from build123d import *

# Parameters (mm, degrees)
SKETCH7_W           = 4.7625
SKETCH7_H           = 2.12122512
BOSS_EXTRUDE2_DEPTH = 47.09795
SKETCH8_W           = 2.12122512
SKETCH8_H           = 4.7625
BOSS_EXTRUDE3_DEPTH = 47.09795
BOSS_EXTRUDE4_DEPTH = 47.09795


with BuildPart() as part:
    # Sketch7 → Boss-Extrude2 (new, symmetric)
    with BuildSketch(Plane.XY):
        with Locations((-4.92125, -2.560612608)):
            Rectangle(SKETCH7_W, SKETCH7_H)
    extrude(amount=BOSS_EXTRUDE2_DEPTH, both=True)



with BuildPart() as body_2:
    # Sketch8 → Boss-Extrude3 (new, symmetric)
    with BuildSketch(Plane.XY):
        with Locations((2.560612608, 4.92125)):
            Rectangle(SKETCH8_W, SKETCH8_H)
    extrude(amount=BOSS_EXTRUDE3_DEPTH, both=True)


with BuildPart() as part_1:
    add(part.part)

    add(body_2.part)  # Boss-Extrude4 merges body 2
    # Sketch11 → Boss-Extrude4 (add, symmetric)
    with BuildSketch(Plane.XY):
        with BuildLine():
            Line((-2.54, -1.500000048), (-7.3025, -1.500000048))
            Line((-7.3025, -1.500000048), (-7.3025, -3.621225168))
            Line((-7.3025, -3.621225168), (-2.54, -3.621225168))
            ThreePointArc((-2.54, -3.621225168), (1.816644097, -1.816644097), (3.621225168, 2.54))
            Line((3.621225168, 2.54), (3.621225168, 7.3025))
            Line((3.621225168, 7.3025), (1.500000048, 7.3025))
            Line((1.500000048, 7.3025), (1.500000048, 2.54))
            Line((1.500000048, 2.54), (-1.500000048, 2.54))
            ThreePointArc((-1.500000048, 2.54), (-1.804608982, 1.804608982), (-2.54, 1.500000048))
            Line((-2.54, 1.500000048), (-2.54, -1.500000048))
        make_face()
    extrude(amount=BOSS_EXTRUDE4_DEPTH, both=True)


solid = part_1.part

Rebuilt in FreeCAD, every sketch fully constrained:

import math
import FreeCAD as App
import Part
import Sketcher

V = App.Vector
Q = App.Units.Quantity

doc = App.newDocument("Part")
params = doc.addObject("Spreadsheet::Sheet", "Params")
for row, (alias, value) in enumerate([
    ("pad1_length", "94.1959 mm"),
    ("pad2_length", "94.1959 mm"),
    ("sketch3_width", "3 mm"),
    ("sketch3_radius", "1.04 mm"),
    ("pad3_length", "94.1959 mm"),
], start=1):
    params.set(f"A{row}", alias)
    params.set(f"B{row}", "=" + value)
    params.setAlias(f"B{row}", alias)

body = doc.addObject("PartDesign::Body", "Body")

# Sketch on XY plane
sketch1 = doc.addObject("Sketcher::SketchObject", "Sketch")
body.addObject(sketch1)
sketch1.AttachmentSupport = (doc.XY_Plane, [""])
sketch1.MapMode = "FlatFace"
sketch1.addGeometry([
    Part.LineSegment(V(-7.3025, -1.5, 0), V(-7.3025, -3.621225, 0)),
    Part.LineSegment(V(-7.3025, -3.621225, 0), V(-2.54, -3.621225, 0)),
    Part.LineSegment(V(-2.54, -3.621225, 0), V(-2.54, -1.5, 0)),
    Part.LineSegment(V(-2.54, -1.5, 0), V(-7.3025, -1.5, 0)),
], False)
sketch1.addConstraint([
    Sketcher.Constraint("Coincident", 0, 2, 1, 1),
    Sketcher.Constraint("Coincident", 1, 2, 2, 1),
    Sketcher.Constraint("Coincident", 2, 2, 3, 1),
    Sketcher.Constraint("Coincident", 3, 2, 0, 1),
    Sketcher.Constraint("Vertical", 0),
    Sketcher.Constraint("Horizontal", 1),
    Sketcher.Constraint("Vertical", 2),
    Sketcher.Constraint("Horizontal", 3),
    Sketcher.Constraint("DistanceY", 2, 2, -1, 1, Q("1.5 mm")),
    Sketcher.Constraint("DistanceX", 1, 2, -1, 1, Q("2.54 mm")),
    Sketcher.Constraint("DistanceX", 1, 1, 1, 2, Q("4.7625 mm")),
    Sketcher.Constraint("DistanceY", 0, 2, 0, 1, Q("2.121225 mm")),
])
pad1 = doc.addObject("PartDesign::Pad", "Pad")
body.addObject(pad1)
pad1.Profile = sketch1
pad1.setExpression("Length", "Params.pad1_length")
pad1.Midplane = True
body2 = doc.addObject("PartDesign::Body", "Body001")

# Sketch on XY plane
sketch2 = doc.addObject("Sketcher::SketchObject", "Sketch001")
body2.addObject(sketch2)
sketch2.AttachmentSupport = (doc.getObject("XY_Plane001"), [""])
sketch2.MapMode = "FlatFace"
sketch2.addGeometry([
    Part.LineSegment(V(1.5, 7.3025, 0), V(1.5, 2.54, 0)),
    Part.LineSegment(V(1.5, 2.54, 0), V(3.621225, 2.54, 0)),
    Part.LineSegment(V(3.621225, 2.54, 0), V(3.621225, 7.3025, 0)),
    Part.LineSegment(V(3.621225, 7.3025, 0), V(1.5, 7.3025, 0)),
], False)
sketch2.addConstraint([
    Sketcher.Constraint("Coincident", 0, 2, 1, 1),
    Sketcher.Constraint("Coincident", 1, 2, 2, 1),
    Sketcher.Constraint("Coincident", 2, 2, 3, 1),
    Sketcher.Constraint("Coincident", 3, 2, 0, 1),
    Sketcher.Constraint("Vertical", 0),
    Sketcher.Constraint("Horizontal", 1),
    Sketcher.Constraint("Vertical", 2),
    Sketcher.Constraint("Horizontal", 3),
    Sketcher.Constraint("DistanceX", -1, 1, 0, 2, Q("1.5 mm")),
    Sketcher.Constraint("DistanceY", -1, 1, 0, 2, Q("2.54 mm")),
    Sketcher.Constraint("DistanceY", 0, 2, 0, 1, Q("4.7625 mm")),
    Sketcher.Constraint("DistanceX", 1, 1, 1, 2, Q("2.121225 mm")),
])
pad2 = doc.addObject("PartDesign::Pad", "Pad001")
body2.addObject(pad2)
pad2.Profile = sketch2
pad2.setExpression("Length", "Params.pad2_length")
pad2.Midplane = True
body.AllowCompound = True
doc.recompute()

boolean = doc.addObject("PartDesign::Boolean", "Boolean")
body.addObject(boolean)
boolean.Type = "Fuse"
boolean.addObjects([body2])

# Sketch on XY plane
sketch3 = doc.addObject("Sketcher::SketchObject", "Sketch002")
body.addObject(sketch3)
sketch3.AttachmentSupport = (doc.XY_Plane, [""])
sketch3.MapMode = "FlatFace"
sketch3.addGeometry([
    Part.LineSegment(V(-2.54, -1.5, 0), V(-7.3025, -1.5, 0)),  # 0
    Part.LineSegment(V(-7.3025, -1.5, 0), V(-7.3025, -3.621225, 0)),  # 1
    Part.LineSegment(V(-7.3025, -3.621225, 0), V(-2.54, -3.621225, 0)),  # 2
    Part.ArcOfCircle(Part.Circle(V(-2.54, 2.54, 0), V(0, 0, 1), 6.161225), math.radians(-90), math.radians(0)),  # 3
    Part.LineSegment(V(3.621225, 2.54, 0), V(3.621225, 7.3025, 0)),  # 4
    Part.LineSegment(V(3.621225, 7.3025, 0), V(1.5, 7.3025, 0)),  # 5
    Part.LineSegment(V(1.5, 7.3025, 0), V(1.5, 2.54, 0)),  # 6
    Part.LineSegment(V(1.5, 2.54, 0), V(-1.5, 2.54, 0)),  # 7
    Part.ArcOfCircle(Part.Circle(V(-2.54, 2.54, 0), V(0, 0, 1), 1.04), math.radians(-90), math.radians(0)),  # 8
    Part.LineSegment(V(-2.54, 1.5, 0), V(-2.54, -1.5, 0)),  # 9
], False)
sketch3.addConstraint([
    Sketcher.Constraint("Coincident", 0, 2, 1, 1),
    Sketcher.Constraint("Coincident", 1, 2, 2, 1),
    Sketcher.Constraint("Tangent", 2, 2, 3, 1),
    Sketcher.Constraint("Tangent", 3, 2, 4, 1),
    Sketcher.Constraint("Coincident", 4, 2, 5, 1),
    Sketcher.Constraint("Coincident", 5, 2, 6, 1),
    Sketcher.Constraint("Coincident", 6, 2, 7, 1),
    Sketcher.Constraint("Coincident", 7, 2, 8, 2),
    Sketcher.Constraint("Coincident", 8, 1, 9, 1),
    Sketcher.Constraint("Coincident", 9, 2, 0, 1),
    Sketcher.Constraint("Horizontal", 0),
    Sketcher.Constraint("Vertical", 1),
    Sketcher.Constraint("Horizontal", 2),
    Sketcher.Constraint("Vertical", 4),
    Sketcher.Constraint("Horizontal", 5),
    Sketcher.Constraint("Vertical", 6),
    Sketcher.Constraint("Horizontal", 7),
    Sketcher.Constraint("Vertical", 9),
    Sketcher.Constraint("Coincident", 8, 3, 3, 3),
    Sketcher.Constraint("Horizontal", 3, 2, 6, 2),
    Sketcher.Constraint("Vertical", 2, 2, 8, 1),
    Sketcher.Constraint("Equal", 5, 1),
    Sketcher.Constraint("Equal", 2, 4),
    Sketcher.Constraint("DistanceX", 7, 2, 7, 1, Q("3 mm")),
    Sketcher.Constraint("Radius", 8, Q("1.04 mm")),
    Sketcher.Constraint("DistanceY", 0, 2, -1, 1, Q("1.5 mm")),
    Sketcher.Constraint("DistanceX", -1, 1, 5, 2, Q("1.5 mm")),
    Sketcher.Constraint("DistanceX", 0, 2, 0, 1, Q("4.7625 mm")),
    Sketcher.Constraint("Radius", 3, Q("6.161225 mm")),
])
sketch3.setExpression("Constraints[23]", "Params.sketch3_width")
sketch3.setExpression("Constraints[24]", "Params.sketch3_radius")
pad3 = doc.addObject("PartDesign::Pad", "Pad002")
body.addObject(pad3)
pad3.Profile = sketch3
pad3.setExpression("Length", "Params.pad3_length")
pad3.Midplane = True

doc.recompute()
